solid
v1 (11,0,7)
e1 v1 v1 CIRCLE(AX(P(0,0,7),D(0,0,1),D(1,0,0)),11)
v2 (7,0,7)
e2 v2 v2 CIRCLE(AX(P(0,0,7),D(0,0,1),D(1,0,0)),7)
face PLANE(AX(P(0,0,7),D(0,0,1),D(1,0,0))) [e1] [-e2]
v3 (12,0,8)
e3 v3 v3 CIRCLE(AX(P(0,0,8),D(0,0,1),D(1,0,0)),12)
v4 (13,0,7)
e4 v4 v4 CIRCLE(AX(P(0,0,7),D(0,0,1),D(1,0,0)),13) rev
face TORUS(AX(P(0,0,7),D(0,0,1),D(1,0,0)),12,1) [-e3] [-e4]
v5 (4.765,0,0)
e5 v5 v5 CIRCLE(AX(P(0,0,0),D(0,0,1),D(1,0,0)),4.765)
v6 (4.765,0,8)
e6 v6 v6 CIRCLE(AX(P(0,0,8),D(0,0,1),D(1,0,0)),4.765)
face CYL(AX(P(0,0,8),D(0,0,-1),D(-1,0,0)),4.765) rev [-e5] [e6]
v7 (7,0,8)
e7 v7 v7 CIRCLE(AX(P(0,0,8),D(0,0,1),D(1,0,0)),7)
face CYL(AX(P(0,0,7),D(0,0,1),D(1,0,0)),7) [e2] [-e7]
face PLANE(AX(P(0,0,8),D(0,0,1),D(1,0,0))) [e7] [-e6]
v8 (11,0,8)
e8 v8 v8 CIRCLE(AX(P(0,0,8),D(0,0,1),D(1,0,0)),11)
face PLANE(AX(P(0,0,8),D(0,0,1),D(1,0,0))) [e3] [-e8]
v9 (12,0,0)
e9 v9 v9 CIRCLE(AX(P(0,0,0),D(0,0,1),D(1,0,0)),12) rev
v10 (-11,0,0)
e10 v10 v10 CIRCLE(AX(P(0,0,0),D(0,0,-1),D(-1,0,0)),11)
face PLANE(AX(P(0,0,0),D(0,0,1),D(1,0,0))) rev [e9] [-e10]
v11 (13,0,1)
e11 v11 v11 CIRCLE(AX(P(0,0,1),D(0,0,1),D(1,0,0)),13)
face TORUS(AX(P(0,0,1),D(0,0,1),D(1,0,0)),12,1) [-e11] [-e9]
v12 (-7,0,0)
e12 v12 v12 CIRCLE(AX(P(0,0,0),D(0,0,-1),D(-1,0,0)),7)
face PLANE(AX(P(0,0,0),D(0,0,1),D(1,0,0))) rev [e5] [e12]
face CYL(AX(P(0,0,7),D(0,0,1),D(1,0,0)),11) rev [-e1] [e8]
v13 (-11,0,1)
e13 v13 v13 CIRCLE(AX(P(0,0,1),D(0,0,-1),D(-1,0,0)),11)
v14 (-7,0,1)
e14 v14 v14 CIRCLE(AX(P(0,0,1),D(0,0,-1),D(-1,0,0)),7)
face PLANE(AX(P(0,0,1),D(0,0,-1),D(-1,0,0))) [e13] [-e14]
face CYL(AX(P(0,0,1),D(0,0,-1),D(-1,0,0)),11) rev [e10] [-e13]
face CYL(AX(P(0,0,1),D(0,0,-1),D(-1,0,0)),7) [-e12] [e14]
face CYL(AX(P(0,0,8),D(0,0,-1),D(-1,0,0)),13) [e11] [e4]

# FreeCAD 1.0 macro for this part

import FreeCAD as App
import Part
import Sketcher


def edges_at(feature, points):
    """Names of the edges that pass closest to the given points."""
    edges = feature.Shape.Edges
    near = lambda p: min(range(len(edges)), key=lambda i: edges[i].distToShape(Part.Vertex(*p))[0])
    return sorted({f"Edge{near(p) + 1}" for p in points})

doc = App.newDocument("Part")
body = doc.addObject("PartDesign::Body", "Body")

sketch1 = body.newObject("Sketcher::SketchObject", "Sketch")
sketch1.AttachmentSupport = (doc.getObject("XY_Plane"), [""])
sketch1.MapMode = "FlatFace"
sketch1.addGeometry(Part.Circle(App.Vector(0, 0, 0), App.Vector(0, 0, 1), 13), False)
sketch1.addGeometry(Part.Circle(App.Vector(0, 0, 0), App.Vector(0, 0, 1), 4.8), False)
sketch1.addConstraint(Sketcher.Constraint("Coincident", 0, 3, -1, 1))
sketch1.addConstraint(Sketcher.Constraint("Coincident", 1, 3, -1, 1))
sketch1.addConstraint(Sketcher.Constraint("Diameter", 0, 26.0))
sketch1.addConstraint(Sketcher.Constraint("Diameter", 1, 9.53))
pad1 = body.newObject("PartDesign::Pad", "Pad")
pad1.Profile = sketch1
pad1.Length = 8

sketch2 = body.newObject("Sketcher::SketchObject", "Sketch001")
sketch2.AttachmentSupport = (doc.getObject("XY_Plane"), [""])
sketch2.MapMode = "FlatFace"
sketch2.AttachmentOffset = App.Placement(App.Vector(0, 0, 8), App.Rotation())
sketch2.addGeometry(Part.Circle(App.Vector(0, 0, 0), App.Vector(0, 0, 1), 11), False)
sketch2.addGeometry(Part.Circle(App.Vector(0, 0, 0), App.Vector(0, 0, 1), 7), False)
sketch2.addConstraint(Sketcher.Constraint("Coincident", 0, 3, -1, 1))
sketch2.addConstraint(Sketcher.Constraint("Coincident", 1, 3, -1, 1))
sketch2.addConstraint(Sketcher.Constraint("Diameter", 0, 22.0))
sketch2.addConstraint(Sketcher.Constraint("Diameter", 1, 14.0))
pocket1 = body.newObject("PartDesign::Pocket", "Pocket")
pocket1.Profile = sketch2
pocket1.Length = 1

sketch3 = body.newObject("Sketcher::SketchObject", "Sketch002")
sketch3.AttachmentSupport = (doc.getObject("XY_Plane"), [""])
sketch3.MapMode = "FlatFace"
sketch3.AttachmentOffset = App.Placement(App.Vector(0, 0, 1), App.Rotation())
sketch3.addGeometry(Part.Circle(App.Vector(0, 0, 0), App.Vector(0, 0, 1), 11), False)
sketch3.addGeometry(Part.Circle(App.Vector(0, 0, 0), App.Vector(0, 0, 1), 7), False)
sketch3.addConstraint(Sketcher.Constraint("Coincident", 0, 3, -1, 1))
sketch3.addConstraint(Sketcher.Constraint("Coincident", 1, 3, -1, 1))
sketch3.addConstraint(Sketcher.Constraint("Diameter", 0, 22.0))
sketch3.addConstraint(Sketcher.Constraint("Diameter", 1, 14.0))
pocket2 = body.newObject("PartDesign::Pocket", "Pocket001")
pocket2.Profile = sketch3
pocket2.Length = 1
doc.recompute()

fillet = body.newObject("PartDesign::Fillet", "Fillet")
fillet.Base = (pocket2, edges_at(pocket2, [(-13, 0, 0), (-13, 0, 8)]))
fillet.Radius = 1

doc.recompute()
